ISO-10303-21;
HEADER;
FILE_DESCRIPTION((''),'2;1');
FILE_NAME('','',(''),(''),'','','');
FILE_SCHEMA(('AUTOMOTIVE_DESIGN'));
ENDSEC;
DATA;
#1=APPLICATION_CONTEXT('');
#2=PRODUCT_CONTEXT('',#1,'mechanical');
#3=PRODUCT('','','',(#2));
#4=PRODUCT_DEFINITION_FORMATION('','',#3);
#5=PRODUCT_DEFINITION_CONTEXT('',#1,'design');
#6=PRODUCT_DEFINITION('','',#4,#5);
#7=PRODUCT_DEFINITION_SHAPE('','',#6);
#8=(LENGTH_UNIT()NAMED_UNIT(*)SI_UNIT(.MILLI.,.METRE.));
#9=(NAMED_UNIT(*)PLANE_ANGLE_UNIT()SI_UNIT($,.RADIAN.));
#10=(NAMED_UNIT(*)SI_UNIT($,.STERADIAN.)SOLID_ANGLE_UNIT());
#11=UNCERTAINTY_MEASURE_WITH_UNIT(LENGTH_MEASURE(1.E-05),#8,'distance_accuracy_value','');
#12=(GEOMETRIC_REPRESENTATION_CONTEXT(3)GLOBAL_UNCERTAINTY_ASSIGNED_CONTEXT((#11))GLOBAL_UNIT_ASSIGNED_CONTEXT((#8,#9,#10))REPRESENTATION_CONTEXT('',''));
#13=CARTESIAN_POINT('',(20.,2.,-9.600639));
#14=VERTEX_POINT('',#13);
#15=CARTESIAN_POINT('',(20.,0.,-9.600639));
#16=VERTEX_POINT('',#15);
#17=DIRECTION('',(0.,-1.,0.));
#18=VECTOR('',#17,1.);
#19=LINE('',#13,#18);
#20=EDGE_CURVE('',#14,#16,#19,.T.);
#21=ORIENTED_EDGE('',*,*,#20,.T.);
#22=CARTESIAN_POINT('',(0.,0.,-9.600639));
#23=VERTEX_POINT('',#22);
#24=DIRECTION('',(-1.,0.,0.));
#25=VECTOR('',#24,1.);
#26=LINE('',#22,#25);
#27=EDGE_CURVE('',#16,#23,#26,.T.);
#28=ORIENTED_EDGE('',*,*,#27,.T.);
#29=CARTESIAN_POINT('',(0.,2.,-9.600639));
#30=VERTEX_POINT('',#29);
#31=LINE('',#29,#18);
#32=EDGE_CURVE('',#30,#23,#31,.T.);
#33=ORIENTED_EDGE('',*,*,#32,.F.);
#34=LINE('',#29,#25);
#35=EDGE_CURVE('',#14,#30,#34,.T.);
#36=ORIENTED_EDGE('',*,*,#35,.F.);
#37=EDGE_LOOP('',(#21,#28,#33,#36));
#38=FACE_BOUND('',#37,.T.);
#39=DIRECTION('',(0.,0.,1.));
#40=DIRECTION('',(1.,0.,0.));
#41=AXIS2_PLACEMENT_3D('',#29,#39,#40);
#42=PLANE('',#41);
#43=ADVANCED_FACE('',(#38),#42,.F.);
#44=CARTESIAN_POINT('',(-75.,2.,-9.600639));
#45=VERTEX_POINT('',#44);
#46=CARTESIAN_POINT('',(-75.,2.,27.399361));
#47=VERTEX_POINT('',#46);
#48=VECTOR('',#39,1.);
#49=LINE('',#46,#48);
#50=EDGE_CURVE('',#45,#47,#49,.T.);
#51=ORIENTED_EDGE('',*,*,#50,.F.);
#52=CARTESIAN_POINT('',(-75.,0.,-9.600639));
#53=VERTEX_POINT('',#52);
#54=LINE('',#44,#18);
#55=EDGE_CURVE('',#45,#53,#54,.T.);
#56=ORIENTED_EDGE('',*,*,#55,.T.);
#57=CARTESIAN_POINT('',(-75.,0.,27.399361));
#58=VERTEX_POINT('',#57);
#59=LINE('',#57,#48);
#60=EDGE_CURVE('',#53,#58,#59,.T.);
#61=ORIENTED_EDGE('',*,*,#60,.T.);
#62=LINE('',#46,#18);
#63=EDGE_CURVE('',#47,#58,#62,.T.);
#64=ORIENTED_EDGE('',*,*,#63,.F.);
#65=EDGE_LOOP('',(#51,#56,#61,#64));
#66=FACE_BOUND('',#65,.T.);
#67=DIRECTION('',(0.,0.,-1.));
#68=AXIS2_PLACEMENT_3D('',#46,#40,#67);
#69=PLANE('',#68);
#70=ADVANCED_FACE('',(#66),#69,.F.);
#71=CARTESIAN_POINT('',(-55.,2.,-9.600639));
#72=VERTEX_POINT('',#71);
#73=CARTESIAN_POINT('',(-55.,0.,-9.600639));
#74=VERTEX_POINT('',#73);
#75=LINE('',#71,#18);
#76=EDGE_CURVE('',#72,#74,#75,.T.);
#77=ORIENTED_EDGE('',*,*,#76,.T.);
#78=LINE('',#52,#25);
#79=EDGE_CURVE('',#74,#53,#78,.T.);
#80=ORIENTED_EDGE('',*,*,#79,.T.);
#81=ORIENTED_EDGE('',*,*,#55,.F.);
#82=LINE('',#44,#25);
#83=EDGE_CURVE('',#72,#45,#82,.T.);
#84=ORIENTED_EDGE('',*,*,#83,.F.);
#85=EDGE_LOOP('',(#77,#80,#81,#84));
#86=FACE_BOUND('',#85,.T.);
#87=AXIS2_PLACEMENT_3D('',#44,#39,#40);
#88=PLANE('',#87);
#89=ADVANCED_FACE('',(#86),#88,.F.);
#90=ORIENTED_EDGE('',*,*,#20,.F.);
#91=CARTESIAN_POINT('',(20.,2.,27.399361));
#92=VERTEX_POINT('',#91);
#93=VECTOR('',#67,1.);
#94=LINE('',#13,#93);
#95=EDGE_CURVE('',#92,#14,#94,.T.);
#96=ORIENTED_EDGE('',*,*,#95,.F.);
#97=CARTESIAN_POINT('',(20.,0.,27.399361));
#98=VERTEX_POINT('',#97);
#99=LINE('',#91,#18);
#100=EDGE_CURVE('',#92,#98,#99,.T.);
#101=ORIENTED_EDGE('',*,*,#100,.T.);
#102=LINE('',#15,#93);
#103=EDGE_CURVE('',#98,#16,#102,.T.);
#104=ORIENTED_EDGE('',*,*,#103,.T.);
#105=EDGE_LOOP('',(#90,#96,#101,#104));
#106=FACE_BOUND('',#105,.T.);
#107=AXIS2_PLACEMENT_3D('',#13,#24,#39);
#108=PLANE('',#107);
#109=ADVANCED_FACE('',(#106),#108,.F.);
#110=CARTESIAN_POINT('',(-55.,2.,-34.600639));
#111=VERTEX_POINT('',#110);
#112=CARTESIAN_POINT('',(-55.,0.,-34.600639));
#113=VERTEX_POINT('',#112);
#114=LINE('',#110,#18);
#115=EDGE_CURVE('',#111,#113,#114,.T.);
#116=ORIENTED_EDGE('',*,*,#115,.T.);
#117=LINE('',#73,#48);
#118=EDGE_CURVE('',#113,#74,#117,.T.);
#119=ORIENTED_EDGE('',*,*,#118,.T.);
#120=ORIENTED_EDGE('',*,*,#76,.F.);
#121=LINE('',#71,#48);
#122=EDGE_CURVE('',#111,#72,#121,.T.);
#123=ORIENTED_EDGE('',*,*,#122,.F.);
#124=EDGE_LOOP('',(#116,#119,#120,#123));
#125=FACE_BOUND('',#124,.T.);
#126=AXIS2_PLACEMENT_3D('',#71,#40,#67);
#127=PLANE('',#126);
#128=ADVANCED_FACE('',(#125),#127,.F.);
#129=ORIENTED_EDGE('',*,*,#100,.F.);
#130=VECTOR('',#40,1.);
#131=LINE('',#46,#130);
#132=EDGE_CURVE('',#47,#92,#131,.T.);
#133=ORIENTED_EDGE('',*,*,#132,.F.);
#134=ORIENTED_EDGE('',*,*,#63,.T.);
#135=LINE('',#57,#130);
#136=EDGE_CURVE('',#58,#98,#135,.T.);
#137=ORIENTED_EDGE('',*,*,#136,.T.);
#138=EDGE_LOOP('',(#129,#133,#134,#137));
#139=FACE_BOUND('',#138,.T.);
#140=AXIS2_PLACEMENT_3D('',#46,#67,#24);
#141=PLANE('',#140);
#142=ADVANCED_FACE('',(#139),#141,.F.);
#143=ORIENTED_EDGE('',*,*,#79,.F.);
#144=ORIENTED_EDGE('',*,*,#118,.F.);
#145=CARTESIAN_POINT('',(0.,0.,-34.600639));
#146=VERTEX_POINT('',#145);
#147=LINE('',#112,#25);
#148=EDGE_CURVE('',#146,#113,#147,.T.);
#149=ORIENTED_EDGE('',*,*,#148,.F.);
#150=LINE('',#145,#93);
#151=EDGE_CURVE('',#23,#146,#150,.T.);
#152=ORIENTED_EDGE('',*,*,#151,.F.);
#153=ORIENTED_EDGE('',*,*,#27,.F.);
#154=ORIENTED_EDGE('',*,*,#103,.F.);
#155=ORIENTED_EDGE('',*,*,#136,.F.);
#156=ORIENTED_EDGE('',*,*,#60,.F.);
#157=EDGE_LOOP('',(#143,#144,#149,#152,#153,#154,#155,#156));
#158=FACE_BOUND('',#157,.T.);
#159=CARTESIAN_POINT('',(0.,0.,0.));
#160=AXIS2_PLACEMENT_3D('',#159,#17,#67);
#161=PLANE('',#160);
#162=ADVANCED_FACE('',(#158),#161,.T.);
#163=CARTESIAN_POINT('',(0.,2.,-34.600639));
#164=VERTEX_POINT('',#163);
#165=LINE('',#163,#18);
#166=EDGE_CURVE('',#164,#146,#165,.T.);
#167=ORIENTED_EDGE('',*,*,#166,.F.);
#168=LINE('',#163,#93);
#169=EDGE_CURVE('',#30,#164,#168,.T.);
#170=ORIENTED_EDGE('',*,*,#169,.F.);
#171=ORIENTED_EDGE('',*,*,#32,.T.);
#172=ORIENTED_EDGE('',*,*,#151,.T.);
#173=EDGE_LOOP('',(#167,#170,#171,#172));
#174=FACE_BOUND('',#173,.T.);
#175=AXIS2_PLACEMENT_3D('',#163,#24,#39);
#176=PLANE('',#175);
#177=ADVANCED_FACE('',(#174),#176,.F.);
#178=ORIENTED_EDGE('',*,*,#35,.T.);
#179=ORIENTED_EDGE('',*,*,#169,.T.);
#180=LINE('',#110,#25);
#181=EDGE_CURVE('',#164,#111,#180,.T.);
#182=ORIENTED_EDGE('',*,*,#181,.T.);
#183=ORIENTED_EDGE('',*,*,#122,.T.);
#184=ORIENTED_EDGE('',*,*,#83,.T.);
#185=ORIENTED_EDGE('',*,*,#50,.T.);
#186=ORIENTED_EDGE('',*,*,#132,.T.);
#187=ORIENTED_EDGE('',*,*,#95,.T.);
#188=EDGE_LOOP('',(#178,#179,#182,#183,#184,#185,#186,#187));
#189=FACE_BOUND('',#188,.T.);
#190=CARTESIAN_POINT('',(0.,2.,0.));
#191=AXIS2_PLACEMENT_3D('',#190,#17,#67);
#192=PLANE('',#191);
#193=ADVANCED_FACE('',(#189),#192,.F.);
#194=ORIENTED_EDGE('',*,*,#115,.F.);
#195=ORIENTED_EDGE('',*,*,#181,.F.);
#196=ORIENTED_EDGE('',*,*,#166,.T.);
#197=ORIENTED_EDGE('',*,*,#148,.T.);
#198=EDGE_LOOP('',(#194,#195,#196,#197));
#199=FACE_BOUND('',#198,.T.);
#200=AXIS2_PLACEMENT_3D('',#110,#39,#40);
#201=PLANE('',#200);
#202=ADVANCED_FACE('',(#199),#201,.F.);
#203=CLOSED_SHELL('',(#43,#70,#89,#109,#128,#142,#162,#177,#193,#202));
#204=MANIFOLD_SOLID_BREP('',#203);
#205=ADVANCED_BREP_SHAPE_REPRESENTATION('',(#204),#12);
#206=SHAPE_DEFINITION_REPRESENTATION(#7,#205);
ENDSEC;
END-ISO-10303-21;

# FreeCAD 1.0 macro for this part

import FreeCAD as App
import Part
import Sketcher

V = App.Vector


def add_polygon(sketch, points):
    """Adds a closed chain of lines whose ends are joined by coincident constraints."""
    first, n = sketch.GeometryCount, len(points)
    for a, b in zip(points, points[1:] + points[:1]):
        sketch.addGeometry(Part.LineSegment(App.Vector(*a, 0), App.Vector(*b, 0)), False)
    for i in range(n):
        sketch.addConstraint(Sketcher.Constraint("Coincident", first + i, 2, first + (i + 1) % n, 1))

doc = App.newDocument("Part")
body = doc.addObject("PartDesign::Body", "Body")

sketch1 = body.newObject("Sketcher::SketchObject", "Sketch")
sketch1.AttachmentSupport = (doc.getObject("XZ_Plane"), [""])
sketch1.MapMode = "FlatFace"
add_polygon(sketch1, [(-75, 27), (20, 27), (20, -10), (0, -10), (0, -35), (-55, -35), (-55, -10), (-75, -10)])
sketch1.addConstraint([
    Sketcher.Constraint("Horizontal", 0),
    Sketcher.Constraint("Vertical", 1),
    Sketcher.Constraint("Horizontal", 2),
    Sketcher.Constraint("Vertical", 3),
    Sketcher.Constraint("Horizontal", 4),
    Sketcher.Constraint("Vertical", 5),
    Sketcher.Constraint("Horizontal", 6),
    Sketcher.Constraint("Vertical", 7),
    Sketcher.Constraint("PointOnObject", 2, 2, -2),
    Sketcher.Constraint("Horizontal", 2, 2, 5, 2),
    Sketcher.Constraint("Equal", 2, 6),
    Sketcher.Constraint("DistanceX", 0, 1, 0, 2, 95.0),
    Sketcher.Constraint("DistanceX", 2, 2, 2, 1, 20.0),
    Sketcher.Constraint("DistanceY", 1, 2, 1, 1, 37.0),
    Sketcher.Constraint("DistanceY", 3, 2, 3, 1, 25.0),
    Sketcher.Constraint("DistanceY", -1, 1, 0, 2, 27.399361),
])
pad1 = body.newObject("PartDesign::Pad", "Pad")
pad1.Profile = sketch1
pad1.Length = 2
pad1.Reversed = True

doc.recompute()
